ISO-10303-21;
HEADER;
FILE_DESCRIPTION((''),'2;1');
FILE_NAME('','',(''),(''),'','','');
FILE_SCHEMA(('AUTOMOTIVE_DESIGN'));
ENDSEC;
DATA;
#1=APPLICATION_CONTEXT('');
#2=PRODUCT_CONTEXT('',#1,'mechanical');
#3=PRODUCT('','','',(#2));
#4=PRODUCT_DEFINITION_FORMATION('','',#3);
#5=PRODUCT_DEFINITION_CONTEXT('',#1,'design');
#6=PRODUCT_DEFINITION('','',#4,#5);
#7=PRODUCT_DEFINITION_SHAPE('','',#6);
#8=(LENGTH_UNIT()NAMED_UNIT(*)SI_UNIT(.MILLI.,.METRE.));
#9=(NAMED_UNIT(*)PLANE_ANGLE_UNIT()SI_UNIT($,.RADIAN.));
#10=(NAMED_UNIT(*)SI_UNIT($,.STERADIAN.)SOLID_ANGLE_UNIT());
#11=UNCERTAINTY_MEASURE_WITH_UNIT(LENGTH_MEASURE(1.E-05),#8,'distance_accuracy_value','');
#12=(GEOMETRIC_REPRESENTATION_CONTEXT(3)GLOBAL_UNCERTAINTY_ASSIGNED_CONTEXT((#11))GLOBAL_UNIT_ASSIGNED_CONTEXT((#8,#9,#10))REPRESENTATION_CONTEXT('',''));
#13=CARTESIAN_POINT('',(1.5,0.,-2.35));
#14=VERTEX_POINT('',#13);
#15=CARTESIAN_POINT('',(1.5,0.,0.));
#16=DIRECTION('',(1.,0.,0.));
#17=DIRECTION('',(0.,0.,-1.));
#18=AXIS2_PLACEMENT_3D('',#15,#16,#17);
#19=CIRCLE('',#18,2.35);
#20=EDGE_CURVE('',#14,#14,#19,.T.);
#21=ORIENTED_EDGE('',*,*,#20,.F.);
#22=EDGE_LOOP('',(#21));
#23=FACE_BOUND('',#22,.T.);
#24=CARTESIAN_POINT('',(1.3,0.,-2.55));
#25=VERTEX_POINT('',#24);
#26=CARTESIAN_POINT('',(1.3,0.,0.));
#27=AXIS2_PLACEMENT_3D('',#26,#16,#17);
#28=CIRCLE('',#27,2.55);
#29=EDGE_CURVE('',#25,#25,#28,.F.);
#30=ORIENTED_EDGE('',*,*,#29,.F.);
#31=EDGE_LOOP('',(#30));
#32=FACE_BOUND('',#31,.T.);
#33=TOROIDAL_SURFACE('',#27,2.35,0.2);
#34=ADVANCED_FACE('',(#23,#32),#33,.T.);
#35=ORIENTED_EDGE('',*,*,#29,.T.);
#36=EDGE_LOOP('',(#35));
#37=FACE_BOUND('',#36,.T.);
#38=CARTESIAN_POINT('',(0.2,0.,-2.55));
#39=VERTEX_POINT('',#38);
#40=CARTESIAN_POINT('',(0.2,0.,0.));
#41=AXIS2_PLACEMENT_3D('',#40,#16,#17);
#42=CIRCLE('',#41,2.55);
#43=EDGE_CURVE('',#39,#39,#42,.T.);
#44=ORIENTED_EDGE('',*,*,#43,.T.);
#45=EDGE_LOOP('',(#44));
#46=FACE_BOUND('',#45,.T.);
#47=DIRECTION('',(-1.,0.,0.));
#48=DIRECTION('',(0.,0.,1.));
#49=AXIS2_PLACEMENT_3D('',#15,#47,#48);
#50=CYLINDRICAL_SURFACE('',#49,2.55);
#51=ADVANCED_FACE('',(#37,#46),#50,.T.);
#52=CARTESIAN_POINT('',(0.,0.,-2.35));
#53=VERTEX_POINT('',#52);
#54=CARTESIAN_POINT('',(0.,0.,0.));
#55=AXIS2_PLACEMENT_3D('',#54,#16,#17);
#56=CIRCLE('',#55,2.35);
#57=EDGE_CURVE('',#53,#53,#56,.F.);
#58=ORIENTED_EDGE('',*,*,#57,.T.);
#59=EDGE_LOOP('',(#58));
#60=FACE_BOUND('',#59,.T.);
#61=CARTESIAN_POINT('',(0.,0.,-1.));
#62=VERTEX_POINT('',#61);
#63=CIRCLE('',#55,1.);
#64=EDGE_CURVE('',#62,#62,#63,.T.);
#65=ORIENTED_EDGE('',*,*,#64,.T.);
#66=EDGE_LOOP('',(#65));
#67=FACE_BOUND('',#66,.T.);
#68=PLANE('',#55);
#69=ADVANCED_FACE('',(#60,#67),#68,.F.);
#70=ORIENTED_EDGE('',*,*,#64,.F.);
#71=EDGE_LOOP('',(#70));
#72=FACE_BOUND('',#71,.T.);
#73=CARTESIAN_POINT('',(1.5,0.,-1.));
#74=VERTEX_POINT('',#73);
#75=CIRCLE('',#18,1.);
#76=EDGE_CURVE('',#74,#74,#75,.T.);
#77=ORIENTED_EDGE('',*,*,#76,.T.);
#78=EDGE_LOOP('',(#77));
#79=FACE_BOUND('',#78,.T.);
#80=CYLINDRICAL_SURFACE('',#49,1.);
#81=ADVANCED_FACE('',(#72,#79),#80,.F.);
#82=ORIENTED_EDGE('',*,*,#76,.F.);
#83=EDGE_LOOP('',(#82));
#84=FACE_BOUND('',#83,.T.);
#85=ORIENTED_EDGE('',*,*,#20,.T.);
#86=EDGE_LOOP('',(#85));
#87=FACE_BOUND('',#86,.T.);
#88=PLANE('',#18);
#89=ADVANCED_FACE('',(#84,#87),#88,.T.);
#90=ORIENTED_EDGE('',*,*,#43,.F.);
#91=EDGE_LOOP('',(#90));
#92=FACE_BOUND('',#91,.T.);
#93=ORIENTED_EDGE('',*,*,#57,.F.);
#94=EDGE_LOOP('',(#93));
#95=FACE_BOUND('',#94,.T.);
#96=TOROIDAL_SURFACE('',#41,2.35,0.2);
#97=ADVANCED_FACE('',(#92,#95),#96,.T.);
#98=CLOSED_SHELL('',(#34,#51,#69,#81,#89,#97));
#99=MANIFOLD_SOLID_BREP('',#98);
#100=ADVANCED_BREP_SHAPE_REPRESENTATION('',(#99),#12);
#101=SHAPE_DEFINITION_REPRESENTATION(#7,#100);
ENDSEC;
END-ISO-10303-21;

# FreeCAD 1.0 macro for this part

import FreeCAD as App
import Part
import Sketcher

V = App.Vector
Q = App.Units.Quantity


def edges_at(feature, points):
    """Names of the edges that pass closest to the given points."""
    edges = feature.Shape.Edges
    near = lambda p: min(range(len(edges)), key=lambda i: edges[i].distToShape(Part.Vertex(*p))[0])
    return sorted({f"Edge{near(p) + 1}" for p in points})

doc = App.newDocument("Part")
body = doc.addObject("PartDesign::Body", "Body")

# Sketch on YZ plane
sketch1 = body.newObject("Sketcher::SketchObject", "Sketch")
sketch1.AttachmentSupport = (doc.getObject("YZ_Plane"), [""])
sketch1.MapMode = "FlatFace"
sketch1.addGeometry(Part.Circle(V(0, 0, 0), V(0, 0, 1), 2.5), False)
sketch1.addGeometry(Part.Circle(V(0, 0, 0), V(0, 0, 1), 1), False)
sketch1.addConstraint(Sketcher.Constraint("Coincident", 0, 3, -1, 1))
sketch1.addConstraint(Sketcher.Constraint("Coincident", 1, 3, -1, 1))
sketch1.addConstraint(Sketcher.Constraint("Diameter", 1, Q("2 mm")))
sketch1.addConstraint(Sketcher.Constraint("Diameter", 0, Q("5.1 mm")))
pad1 = body.newObject("PartDesign::Pad", "Pad")
pad1.Profile = sketch1
pad1.Length = 1.5
doc.recompute()

fillet = body.newObject("PartDesign::Fillet", "Fillet")
fillet.Base = (pad1, edges_at(pad1, [(0, 0, 2.55), (1.5, 0, 2.55)]))
fillet.Radius = 0.2

doc.recompute()
